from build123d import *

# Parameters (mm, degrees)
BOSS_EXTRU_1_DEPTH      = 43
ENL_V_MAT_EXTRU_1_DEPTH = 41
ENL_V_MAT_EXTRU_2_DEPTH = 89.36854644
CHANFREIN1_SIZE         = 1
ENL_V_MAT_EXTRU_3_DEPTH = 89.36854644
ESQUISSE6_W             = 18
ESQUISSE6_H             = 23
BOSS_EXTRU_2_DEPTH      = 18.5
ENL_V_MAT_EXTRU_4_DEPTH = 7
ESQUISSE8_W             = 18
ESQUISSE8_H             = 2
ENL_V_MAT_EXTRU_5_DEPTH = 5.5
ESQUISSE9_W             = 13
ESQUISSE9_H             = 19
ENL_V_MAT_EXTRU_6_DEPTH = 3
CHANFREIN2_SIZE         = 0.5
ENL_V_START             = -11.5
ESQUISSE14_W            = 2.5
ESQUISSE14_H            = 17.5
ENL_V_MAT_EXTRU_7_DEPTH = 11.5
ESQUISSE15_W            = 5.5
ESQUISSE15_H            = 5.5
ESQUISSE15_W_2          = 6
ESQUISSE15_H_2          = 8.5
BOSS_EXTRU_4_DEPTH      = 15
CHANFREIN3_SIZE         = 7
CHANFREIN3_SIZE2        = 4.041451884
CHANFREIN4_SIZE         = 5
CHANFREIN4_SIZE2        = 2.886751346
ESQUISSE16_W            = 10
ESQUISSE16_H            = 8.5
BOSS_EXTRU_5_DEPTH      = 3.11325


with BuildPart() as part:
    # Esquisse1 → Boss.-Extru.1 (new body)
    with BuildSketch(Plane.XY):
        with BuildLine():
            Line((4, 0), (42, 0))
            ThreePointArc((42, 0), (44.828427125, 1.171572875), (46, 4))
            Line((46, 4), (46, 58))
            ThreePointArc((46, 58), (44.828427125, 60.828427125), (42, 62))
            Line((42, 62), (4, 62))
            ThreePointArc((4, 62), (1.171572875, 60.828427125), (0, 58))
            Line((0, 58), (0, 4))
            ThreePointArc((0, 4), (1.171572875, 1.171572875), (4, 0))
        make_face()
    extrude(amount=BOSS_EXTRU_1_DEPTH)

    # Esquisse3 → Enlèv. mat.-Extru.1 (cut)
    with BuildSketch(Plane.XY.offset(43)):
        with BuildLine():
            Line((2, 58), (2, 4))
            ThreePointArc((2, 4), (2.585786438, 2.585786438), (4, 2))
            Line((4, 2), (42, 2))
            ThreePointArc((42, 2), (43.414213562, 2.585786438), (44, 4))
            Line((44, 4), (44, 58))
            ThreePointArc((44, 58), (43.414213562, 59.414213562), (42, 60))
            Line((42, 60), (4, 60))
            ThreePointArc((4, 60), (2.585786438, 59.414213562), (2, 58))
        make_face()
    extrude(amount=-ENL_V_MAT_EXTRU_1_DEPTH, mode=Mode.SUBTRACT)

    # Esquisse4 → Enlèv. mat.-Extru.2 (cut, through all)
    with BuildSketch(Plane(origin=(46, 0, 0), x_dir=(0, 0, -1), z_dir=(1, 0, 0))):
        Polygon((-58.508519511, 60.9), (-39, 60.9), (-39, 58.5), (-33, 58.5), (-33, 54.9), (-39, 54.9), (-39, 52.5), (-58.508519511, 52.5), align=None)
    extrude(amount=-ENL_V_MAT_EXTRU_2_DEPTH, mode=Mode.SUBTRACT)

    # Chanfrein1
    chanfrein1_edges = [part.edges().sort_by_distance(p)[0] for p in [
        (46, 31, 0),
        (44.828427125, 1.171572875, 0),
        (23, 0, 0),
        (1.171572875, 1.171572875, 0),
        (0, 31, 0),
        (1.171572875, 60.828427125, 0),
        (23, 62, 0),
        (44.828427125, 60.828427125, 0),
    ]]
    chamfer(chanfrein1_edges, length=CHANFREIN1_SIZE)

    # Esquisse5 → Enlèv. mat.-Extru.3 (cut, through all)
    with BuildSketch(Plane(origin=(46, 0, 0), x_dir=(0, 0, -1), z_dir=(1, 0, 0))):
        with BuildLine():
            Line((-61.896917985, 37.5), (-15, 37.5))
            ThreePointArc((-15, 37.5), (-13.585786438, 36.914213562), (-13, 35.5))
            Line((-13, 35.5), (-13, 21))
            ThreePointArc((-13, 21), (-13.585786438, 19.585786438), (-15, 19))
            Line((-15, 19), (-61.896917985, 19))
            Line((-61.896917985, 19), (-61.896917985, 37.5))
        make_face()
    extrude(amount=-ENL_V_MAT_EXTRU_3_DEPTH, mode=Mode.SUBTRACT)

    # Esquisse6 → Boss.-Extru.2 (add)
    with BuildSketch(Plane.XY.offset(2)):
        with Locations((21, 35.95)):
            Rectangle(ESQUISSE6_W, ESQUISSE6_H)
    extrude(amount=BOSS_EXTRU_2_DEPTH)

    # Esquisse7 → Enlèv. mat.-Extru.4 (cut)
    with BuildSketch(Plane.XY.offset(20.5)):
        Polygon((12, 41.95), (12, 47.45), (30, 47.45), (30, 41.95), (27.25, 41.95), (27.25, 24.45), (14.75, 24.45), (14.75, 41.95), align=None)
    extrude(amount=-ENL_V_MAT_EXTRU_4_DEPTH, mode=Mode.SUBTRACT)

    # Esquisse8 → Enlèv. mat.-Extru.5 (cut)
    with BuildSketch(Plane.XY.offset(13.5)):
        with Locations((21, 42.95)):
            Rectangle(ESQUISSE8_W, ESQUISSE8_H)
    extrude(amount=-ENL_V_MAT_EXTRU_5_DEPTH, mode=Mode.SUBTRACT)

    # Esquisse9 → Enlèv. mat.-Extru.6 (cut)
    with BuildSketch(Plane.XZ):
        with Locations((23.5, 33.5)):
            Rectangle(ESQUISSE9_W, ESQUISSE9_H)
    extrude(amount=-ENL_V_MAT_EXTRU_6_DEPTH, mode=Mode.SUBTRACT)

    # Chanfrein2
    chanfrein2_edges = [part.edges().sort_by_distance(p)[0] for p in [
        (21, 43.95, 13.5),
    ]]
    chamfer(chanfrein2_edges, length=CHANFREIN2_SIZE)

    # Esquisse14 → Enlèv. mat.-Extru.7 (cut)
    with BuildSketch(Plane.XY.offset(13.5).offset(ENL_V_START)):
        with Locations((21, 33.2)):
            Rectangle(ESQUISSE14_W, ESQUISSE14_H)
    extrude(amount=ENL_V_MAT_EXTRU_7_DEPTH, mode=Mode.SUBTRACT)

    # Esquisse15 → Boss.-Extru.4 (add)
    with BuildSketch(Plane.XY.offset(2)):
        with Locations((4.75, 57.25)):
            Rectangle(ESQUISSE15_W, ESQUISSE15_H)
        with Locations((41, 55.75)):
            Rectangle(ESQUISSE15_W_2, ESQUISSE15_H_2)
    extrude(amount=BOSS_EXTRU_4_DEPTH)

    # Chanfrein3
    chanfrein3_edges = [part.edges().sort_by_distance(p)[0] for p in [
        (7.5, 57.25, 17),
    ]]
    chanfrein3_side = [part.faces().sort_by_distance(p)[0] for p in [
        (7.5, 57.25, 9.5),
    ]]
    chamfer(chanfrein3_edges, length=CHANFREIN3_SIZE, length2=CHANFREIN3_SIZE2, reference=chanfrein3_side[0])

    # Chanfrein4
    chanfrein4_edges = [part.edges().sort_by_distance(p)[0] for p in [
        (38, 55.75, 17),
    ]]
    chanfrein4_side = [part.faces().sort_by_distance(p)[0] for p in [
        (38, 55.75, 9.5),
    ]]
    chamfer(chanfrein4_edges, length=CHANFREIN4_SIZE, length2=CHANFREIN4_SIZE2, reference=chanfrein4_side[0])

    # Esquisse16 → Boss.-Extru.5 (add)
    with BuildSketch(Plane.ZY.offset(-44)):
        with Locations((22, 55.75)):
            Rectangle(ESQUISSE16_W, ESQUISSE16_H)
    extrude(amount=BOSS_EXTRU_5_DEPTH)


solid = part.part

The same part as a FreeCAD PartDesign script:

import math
import FreeCAD as App
import Part
import Sketcher
Q = App.Units.Quantity


def edges_at(feature, points):
    """Names of the edges that pass closest to the given points."""
    edges = feature.Shape.Edges
    near = lambda p: min(range(len(edges)), key=lambda i: edges[i].distToShape(Part.Vertex(*p))[0])
    return sorted({f"Edge{near(p) + 1}" for p in points})

doc = App.newDocument("Part")
body = doc.addObject("PartDesign::Body", "Body")

sketch1 = body.newObject("Sketcher::SketchObject", "Sketch")
sketch1.AttachmentSupport = (doc.getObject("XY_Plane"), [""])
sketch1.MapMode = "FlatFace"
sketch1.addGeometry([
    Part.LineSegment(App.Vector(4, 0, 0), App.Vector(42, 0, 0)),
    Part.ArcOfCircle(Part.Circle(App.Vector(42, 4, 0), App.Vector(0, 0, 1), 4), math.radians(-90), math.radians(0)),
    Part.LineSegment(App.Vector(46, 4, 0), App.Vector(46, 58, 0)),
    Part.ArcOfCircle(Part.Circle(App.Vector(42, 58, 0), App.Vector(0, 0, 1), 4), math.radians(0), math.radians(90)),
    Part.LineSegment(App.Vector(42, 62, 0), App.Vector(4, 62, 0)),
    Part.ArcOfCircle(Part.Circle(App.Vector(4, 58, 0), App.Vector(0, 0, 1), 4), math.radians(90), math.radians(180)),
    Part.LineSegment(App.Vector(0, 58, 0), App.Vector(0, 4, 0)),
    Part.ArcOfCircle(Part.Circle(App.Vector(4, 4, 0), App.Vector(0, 0, 1), 4), math.radians(180), math.radians(270)),
], False)
sketch1.addConstraint([
    Sketcher.Constraint("Tangent", 0, 2, 1, 1),
    Sketcher.Constraint("Tangent", 1, 2, 2, 1),
    Sketcher.Constraint("Tangent", 2, 2, 3, 1),
    Sketcher.Constraint("Tangent", 3, 2, 4, 1),
    Sketcher.Constraint("Tangent", 4, 2, 5, 1),
    Sketcher.Constraint("Tangent", 5, 2, 6, 1),
    Sketcher.Constraint("Tangent", 6, 2, 7, 1),
    Sketcher.Constraint("Tangent", 7, 2, 0, 1),
    Sketcher.Constraint("Horizontal", 0),
    Sketcher.Constraint("Vertical", 2),
    Sketcher.Constraint("Horizontal", 4),
    Sketcher.Constraint("Vertical", 6),
    Sketcher.Constraint("Equal", 1, 3),
    Sketcher.Constraint("Equal", 3, 5),
    Sketcher.Constraint("Equal", 5, 7),
    Sketcher.Constraint("PointOnObject", 0, 2, -1),
    Sketcher.Constraint("PointOnObject", 5, 2, -2),
    Sketcher.Constraint("Radius", 1, Q("4 mm")),
    Sketcher.Constraint("DistanceX", 0, 1, 0, 2, Q("38 mm")),
    Sketcher.Constraint("DistanceY", 2, 1, 2, 2, Q("54 mm")),
])
pad1 = body.newObject("PartDesign::Pad", "Pad")
pad1.Profile = sketch1
pad1.Length = 43

sketch2 = body.newObject("Sketcher::SketchObject", "Sketch001")
sketch2.AttachmentSupport = (doc.getObject("XY_Plane"), [""])
sketch2.MapMode = "FlatFace"
sketch2.AttachmentOffset = App.Placement(App.Vector(0, 0, 43), App.Rotation())
sketch2.addGeometry([
    Part.LineSegment(App.Vector(2, 58, 0), App.Vector(2, 4, 0)),
    Part.ArcOfCircle(Part.Circle(App.Vector(4, 4, 0), App.Vector(0, 0, 1), 2), math.radians(-180), math.radians(-90)),
    Part.LineSegment(App.Vector(4, 2, 0), App.Vector(42, 2, 0)),
    Part.ArcOfCircle(Part.Circle(App.Vector(42, 4, 0), App.Vector(0, 0, 1), 2), math.radians(-90), math.radians(0)),
    Part.LineSegment(App.Vector(44, 4, 0), App.Vector(44, 58, 0)),
    Part.ArcOfCircle(Part.Circle(App.Vector(42, 58, 0), App.Vector(0, 0, 1), 2), math.radians(0), math.radians(90)),
    Part.LineSegment(App.Vector(42, 60, 0), App.Vector(4, 60, 0)),
    Part.ArcOfCircle(Part.Circle(App.Vector(4, 58, 0), App.Vector(0, 0, 1), 2), math.radians(90), math.radians(180)),
], False)
sketch2.addConstraint([
    Sketcher.Constraint("Tangent", 0, 2, 1, 1),
    Sketcher.Constraint("Tangent", 1, 2, 2, 1),
    Sketcher.Constraint("Tangent", 2, 2, 3, 1),
    Sketcher.Constraint("Tangent", 3, 2, 4, 1),
    Sketcher.Constraint("Tangent", 4, 2, 5, 1),
    Sketcher.Constraint("Tangent", 5, 2, 6, 1),
    Sketcher.Constraint("Tangent", 6, 2, 7, 1),
    Sketcher.Constraint("Tangent", 7, 2, 0, 1),
    Sketcher.Constraint("Vertical", 0),
    Sketcher.Constraint("Horizontal", 2),
    Sketcher.Constraint("Vertical", 4),
    Sketcher.Constraint("Horizontal", 6),
    Sketcher.Constraint("Equal", 1, 3),
    Sketcher.Constraint("Equal", 3, 5),
    Sketcher.Constraint("Equal", 5, 7),
    Sketcher.Constraint("Radius", 1, Q("2 mm")),
    Sketcher.Constraint("DistanceX", 2, 1, 2, 2, Q("38 mm")),
    Sketcher.Constraint("DistanceY", 0, 2, 0, 1, Q("54 mm")),
    Sketcher.Constraint("DistanceX", -1, 1, 1, 3, Q("4 mm")),
    Sketcher.Constraint("DistanceY", -1, 1, 1, 3, Q("4 mm")),
])
pocket1 = body.newObject("PartDesign::Pocket", "Pocket")
pocket1.Profile = sketch2
pocket1.Length = 41

sketch3 = body.newObject("Sketcher::SketchObject", "Sketch002")
sketch3.AttachmentSupport = (doc.getObject("YZ_Plane"), [""])
sketch3.MapMode = "FlatFace"
sketch3.AttachmentOffset = App.Placement(App.Vector(0, 0, 46), App.Rotation())
sketch3.addGeometry([
    Part.LineSegment(App.Vector(60.9, 39, 0), App.Vector(60.9, 58.5, 0)),
    Part.LineSegment(App.Vector(60.9, 58.5, 0), App.Vector(52.5, 58.5, 0)),
    Part.LineSegment(App.Vector(52.5, 58.5, 0), App.Vector(52.5, 39, 0)),
    Part.LineSegment(App.Vector(52.5, 39, 0), App.Vector(54.9, 39, 0)),
    Part.LineSegment(App.Vector(54.9, 39, 0), App.Vector(54.9, 33, 0)),
    Part.LineSegment(App.Vector(54.9, 33, 0), App.Vector(58.5, 33, 0)),
    Part.LineSegment(App.Vector(58.5, 33, 0), App.Vector(58.5, 39, 0)),
    Part.LineSegment(App.Vector(58.5, 39, 0), App.Vector(60.9, 39, 0)),
], False)
sketch3.addConstraint([
    Sketcher.Constraint("Coincident", 0, 2, 1, 1),
    Sketcher.Constraint("Coincident", 1, 2, 2, 1),
    Sketcher.Constraint("Coincident", 2, 2, 3, 1),
    Sketcher.Constraint("Coincident", 3, 2, 4, 1),
    Sketcher.Constraint("Coincident", 4, 2, 5, 1),
    Sketcher.Constraint("Coincident", 5, 2, 6, 1),
    Sketcher.Constraint("Coincident", 6, 2, 7, 1),
    Sketcher.Constraint("Coincident", 7, 2, 0, 1),
    Sketcher.Constraint("Vertical", 0),
    Sketcher.Constraint("Horizontal", 1),
    Sketcher.Constraint("Vertical", 2),
    Sketcher.Constraint("Horizontal", 3),
    Sketcher.Constraint("Vertical", 4),
    Sketcher.Constraint("Horizontal", 5),
    Sketcher.Constraint("Vertical", 6),
    Sketcher.Constraint("Horizontal", 7),
    Sketcher.Constraint("Horizontal", 3, 2, 6, 2),
    Sketcher.Constraint("Equal", 3, 7),
    Sketcher.Constraint("DistanceY", 4, 2, 4, 1, Q("6 mm")),
    Sketcher.Constraint("DistanceX", 1, 2, 1, 1, Q("8.4 mm")),
    Sketcher.Constraint("DistanceX", 3, 1, 3, 2, Q("2.4 mm")),
    Sketcher.Constraint("DistanceY", -1, 1, 2, 2, Q("39 mm")),
    Sketcher.Constraint("DistanceX", -1, 1, 0, 2, Q("60.9 mm")),
    Sketcher.Constraint("DistanceY", 0, 1, 0, 2, Q("19.50852 mm")),
])
pocket2 = body.newObject("PartDesign::Pocket", "Pocket001")
pocket2.Profile = sketch3
pocket2.Type = "ThroughAll"
doc.recompute()

chamfer = body.newObject("PartDesign::Chamfer", "Chamfer")
chamfer.Base = (pocket2, edges_at(pocket2, [
    (46, 31, 0),
    (44.828, 1.172, 0),
    (23, 0, 0),
    (1.172, 1.172, 0),
    (0, 31, 0),
    (1.172, 60.828, 0),
    (23, 62, 0),
    (44.828, 60.828, 0),
]))
chamfer.Size = 1

sketch4 = body.newObject("Sketcher::SketchObject", "Sketch003")
sketch4.AttachmentSupport = (doc.getObject("YZ_Plane"), [""])
sketch4.MapMode = "FlatFace"
sketch4.AttachmentOffset = App.Placement(App.Vector(0, 0, 46), App.Rotation())
sketch4.addGeometry([
    Part.LineSegment(App.Vector(37.5, 15, 0), App.Vector(37.5, 61.9, 0)),
    Part.LineSegment(App.Vector(37.5, 61.9, 0), App.Vector(19, 61.9, 0)),
    Part.LineSegment(App.Vector(19, 61.9, 0), App.Vector(19, 15, 0)),
    Part.ArcOfCircle(Part.Circle(App.Vector(21, 15, 0), App.Vector(0, 0, 1), 2), math.radians(-180), math.radians(-90)),
    Part.LineSegment(App.Vector(21, 13, 0), App.Vector(35.5, 13, 0)),
    Part.ArcOfCircle(Part.Circle(App.Vector(35.5, 15, 0), App.Vector(0, 0, 1), 2), math.radians(-90), math.radians(0)),
], False)
sketch4.addConstraint([
    Sketcher.Constraint("Coincident", 0, 2, 1, 1),
    Sketcher.Constraint("Coincident", 1, 2, 2, 1),
    Sketcher.Constraint("Tangent", 2, 2, 3, 1),
    Sketcher.Constraint("Tangent", 3, 2, 4, 1),
    Sketcher.Constraint("Tangent", 4, 2, 5, 1),
    Sketcher.Constraint("Tangent", 5, 2, 0, 1),
    Sketcher.Constraint("Vertical", 0),
    Sketcher.Constraint("Horizontal", 1),
    Sketcher.Constraint("Vertical", 2),
    Sketcher.Constraint("Horizontal", 4),
    Sketcher.Constraint("Equal", 3, 5),
    Sketcher.Constraint("Radius", 3, Q("2 mm")),
    Sketcher.Constraint("DistanceX", 1, 2, 1, 1, Q("18.5 mm")),
    Sketcher.Constraint("DistanceX", -1, 1, 3, 3, Q("21 mm")),
    Sketcher.Constraint("DistanceY", -1, 1, 3, 3, Q("15 mm")),
    Sketcher.Constraint("DistanceY", 0, 1, 0, 2, Q("46.896918 mm")),
])
pocket3 = body.newObject("PartDesign::Pocket", "Pocket002")
pocket3.Profile = sketch4
pocket3.Type = "ThroughAll"

sketch5 = body.newObject("Sketcher::SketchObject", "Sketch004")
sketch5.AttachmentSupport = (doc.getObject("XY_Plane"), [""])
sketch5.MapMode = "FlatFace"
sketch5.AttachmentOffset = App.Placement(App.Vector(0, 0, 2), App.Rotation())
sketch5.addGeometry([
    Part.LineSegment(App.Vector(12, 47, 0), App.Vector(12, 24, 0)),
    Part.LineSegment(App.Vector(12, 24, 0), App.Vector(30, 24, 0)),
    Part.LineSegment(App.Vector(30, 24, 0), App.Vector(30, 47, 0)),
    Part.LineSegment(App.Vector(30, 47, 0), App.Vector(12, 47, 0)),
], False)
sketch5.addConstraint([
    Sketcher.Constraint("Coincident", 0, 2, 1, 1),
    Sketcher.Constraint("Coincident", 1, 2, 2, 1),
    Sketcher.Constraint("Coincident", 2, 2, 3, 1),
    Sketcher.Constraint("Coincident", 3, 2, 0, 1),
    Sketcher.Constraint("Vertical", 0),
    Sketcher.Constraint("Horizontal", 1),
    Sketcher.Constraint("Vertical", 2),
    Sketcher.Constraint("Horizontal", 3),
    Sketcher.Constraint("DistanceX", 1, 1, 1, 2, Q("18 mm")),
    Sketcher.Constraint("DistanceY", 0, 2, 0, 1, Q("23 mm")),
    Sketcher.Constraint("DistanceX", -1, 1, 0, 2, Q("12 mm")),
    Sketcher.Constraint("DistanceY", -1, 1, 0, 2, Q("24.45 mm")),
])
pad2 = body.newObject("PartDesign::Pad", "Pad001")
pad2.Profile = sketch5
pad2.Length = 18.5

sketch6 = body.newObject("Sketcher::SketchObject", "Sketch005")
sketch6.AttachmentSupport = (doc.getObject("XY_Plane"), [""])
sketch6.MapMode = "FlatFace"
sketch6.AttachmentOffset = App.Placement(App.Vector(0, 0, 20.5), App.Rotation())
sketch6.addGeometry([
    Part.LineSegment(App.Vector(12, 47.5, 0), App.Vector(12, 42, 0)),
    Part.LineSegment(App.Vector(12, 42, 0), App.Vector(14.8, 42, 0)),
    Part.LineSegment(App.Vector(14.8, 42, 0), App.Vector(14.8, 24.4, 0)),
    Part.LineSegment(App.Vector(14.8, 24.4, 0), App.Vector(27.2, 24.4, 0)),
    Part.LineSegment(App.Vector(27.2, 24.4, 0), App.Vector(27.2, 42, 0)),
    Part.LineSegment(App.Vector(27.2, 42, 0), App.Vector(30, 42, 0)),
    Part.LineSegment(App.Vector(30, 42, 0), App.Vector(30, 47.5, 0)),
    Part.LineSegment(App.Vector(30, 47.5, 0), App.Vector(12, 47.5, 0)),
], False)
sketch6.addConstraint([
    Sketcher.Constraint("Coincident", 0, 2, 1, 1),
    Sketcher.Constraint("Coincident", 1, 2, 2, 1),
    Sketcher.Constraint("Coincident", 2, 2, 3, 1),
    Sketcher.Constraint("Coincident", 3, 2, 4, 1),
    Sketcher.Constraint("Coincident", 4, 2, 5, 1),
    Sketcher.Constraint("Coincident", 5, 2, 6, 1),
    Sketcher.Constraint("Coincident", 6, 2, 7, 1),
    Sketcher.Constraint("Coincident", 7, 2, 0, 1),
    Sketcher.Constraint("Vertical", 0),
    Sketcher.Constraint("Horizontal", 1),
    Sketcher.Constraint("Vertical", 2),
    Sketcher.Constraint("Horizontal", 3),
    Sketcher.Constraint("Vertical", 4),
    Sketcher.Constraint("Horizontal", 5),
    Sketcher.Constraint("Vertical", 6),
    Sketcher.Constraint("Horizontal", 7),
    Sketcher.Constraint("Horizontal", 1, 2, 4, 2),
    Sketcher.Constraint("Equal", 1, 5),
    Sketcher.Constraint("DistanceX", 7, 2, 7, 1, Q("18 mm")),
    Sketcher.Constraint("DistanceX", 3, 1, 3, 2, Q("12.5 mm")),
    Sketcher.Constraint("DistanceY", 0, 2, 0, 1, Q("5.5 mm")),
    Sketcher.Constraint("DistanceY", 2, 2, 2, 1, Q("17.5 mm")),
    Sketcher.Constraint("DistanceX", -1, 1, 0, 2, Q("12 mm")),
    Sketcher.Constraint("DistanceY", -1, 1, 0, 2, Q("41.95 mm")),
])
pocket4 = body.newObject("PartDesign::Pocket", "Pocket003")
pocket4.Profile = sketch6
pocket4.Length = 7

sketch7 = body.newObject("Sketcher::SketchObject", "Sketch006")
sketch7.AttachmentSupport = (doc.getObject("XY_Plane"), [""])
sketch7.MapMode = "FlatFace"
sketch7.AttachmentOffset = App.Placement(App.Vector(0, 0, 13.5), App.Rotation())
sketch7.addGeometry([
    Part.LineSegment(App.Vector(12, 44, 0), App.Vector(12, 42, 0)),
    Part.LineSegment(App.Vector(12, 42, 0), App.Vector(30, 42, 0)),
    Part.LineSegment(App.Vector(30, 42, 0), App.Vector(30, 44, 0)),
    Part.LineSegment(App.Vector(30, 44, 0), App.Vector(12, 44, 0)),
], False)
sketch7.addConstraint([
    Sketcher.Constraint("Coincident", 0, 2, 1, 1),
    Sketcher.Constraint("Coincident", 1, 2, 2, 1),
    Sketcher.Constraint("Coincident", 2, 2, 3, 1),
    Sketcher.Constraint("Coincident", 3, 2, 0, 1),
    Sketcher.Constraint("Vertical", 0),
    Sketcher.Constraint("Horizontal", 1),
    Sketcher.Constraint("Vertical", 2),
    Sketcher.Constraint("Horizontal", 3),
    Sketcher.Constraint("DistanceX", 1, 1, 1, 2, Q("18 mm")),
    Sketcher.Constraint("DistanceY", 0, 2, 0, 1, Q("2 mm")),
    Sketcher.Constraint("DistanceX", -1, 1, 0, 2, Q("12 mm")),
    Sketcher.Constraint("DistanceY", -1, 1, 0, 2, Q("41.95 mm")),
])
pocket5 = body.newObject("PartDesign::Pocket", "Pocket004")
pocket5.Profile = sketch7
pocket5.Length = 5.5

sketch8 = body.newObject("Sketcher::SketchObject", "Sketch007")
sketch8.AttachmentSupport = (doc.getObject("XZ_Plane"), [""])
sketch8.MapMode = "FlatFace"
sketch8.addGeometry([
    Part.LineSegment(App.Vector(17, 43, 0), App.Vector(17, 24, 0)),
    Part.LineSegment(App.Vector(17, 24, 0), App.Vector(30, 24, 0)),
    Part.LineSegment(App.Vector(30, 24, 0), App.Vector(30, 43, 0)),
    Part.LineSegment(App.Vector(30, 43, 0), App.Vector(17, 43, 0)),
], False)
sketch8.addConstraint([
    Sketcher.Constraint("Coincident", 0, 2, 1, 1),
    Sketcher.Constraint("Coincident", 1, 2, 2, 1),
    Sketcher.Constraint("Coincident", 2, 2, 3, 1),
    Sketcher.Constraint("Coincident", 3, 2, 0, 1),
    Sketcher.Constraint("Vertical", 0),
    Sketcher.Constraint("Horizontal", 1),
    Sketcher.Constraint("Vertical", 2),
    Sketcher.Constraint("Horizontal", 3),
    Sketcher.Constraint("DistanceX", 1, 1, 1, 2, Q("13 mm")),
    Sketcher.Constraint("DistanceY", 0, 2, 0, 1, Q("19 mm")),
    Sketcher.Constraint("DistanceX", -1, 1, 0, 2, Q("17 mm")),
    Sketcher.Constraint("DistanceY", -1, 1, 0, 2, Q("24 mm")),
])
pocket6 = body.newObject("PartDesign::Pocket", "Pocket005")
pocket6.Profile = sketch8
pocket6.Length = 3
doc.recompute()

chamfer2 = body.newObject("PartDesign::Chamfer", "Chamfer001")
chamfer2.Base = (pocket6, edges_at(pocket6, [(21, 43.95, 13.5)]))
chamfer2.Size = 0.5

sketch9 = body.newObject("Sketcher::SketchObject", "Sketch008")
sketch9.AttachmentSupport = (doc.getObject("XY_Plane"), [""])
sketch9.MapMode = "FlatFace"
sketch9.AttachmentOffset = App.Placement(App.Vector(0, 0, 2), App.Rotation())
sketch9.addGeometry([
    Part.LineSegment(App.Vector(19.8, 42, 0), App.Vector(19.8, 24.4, 0)),
    Part.LineSegment(App.Vector(19.8, 24.4, 0), App.Vector(22.2, 24.4, 0)),
    Part.LineSegment(App.Vector(22.2, 24.4, 0), App.Vector(22.2, 42, 0)),
    Part.LineSegment(App.Vector(22.2, 42, 0), App.Vector(19.8, 42, 0)),
], False)
sketch9.addConstraint([
    Sketcher.Constraint("Coincident", 0, 2, 1, 1),
    Sketcher.Constraint("Coincident", 1, 2, 2, 1),
    Sketcher.Constraint("Coincident", 2, 2, 3, 1),
    Sketcher.Constraint("Coincident", 3, 2, 0, 1),
    Sketcher.Constraint("Vertical", 0),
    Sketcher.Constraint("Horizontal", 1),
    Sketcher.Constraint("Vertical", 2),
    Sketcher.Constraint("Horizontal", 3),
    Sketcher.Constraint("DistanceX", 1, 1, 1, 2, Q("2.5 mm")),
    Sketcher.Constraint("DistanceY", 0, 2, 0, 1, Q("17.5 mm")),
    Sketcher.Constraint("DistanceX", -1, 1, 0, 2, Q("19.75 mm")),
    Sketcher.Constraint("DistanceY", -1, 1, 0, 2, Q("24.45 mm")),
])
pocket7 = body.newObject("PartDesign::Pocket", "Pocket006")
pocket7.Profile = sketch9
pocket7.Length = 11.5
pocket7.Reversed = True

sketch10 = body.newObject("Sketcher::SketchObject", "Sketch009")
sketch10.AttachmentSupport = (doc.getObject("XY_Plane"), [""])
sketch10.MapMode = "FlatFace"
sketch10.AttachmentOffset = App.Placement(App.Vector(0, 0, 2), App.Rotation())
sketch10.addGeometry([
    Part.LineSegment(App.Vector(2, 60, 0), App.Vector(2, 54, 0)),
    Part.LineSegment(App.Vector(2, 54, 0), App.Vector(8, 54, 0)),
    Part.LineSegment(App.Vector(8, 54, 0), App.Vector(8, 60, 0)),
    Part.LineSegment(App.Vector(8, 60, 0), App.Vector(2, 60, 0)),
    Part.LineSegment(App.Vector(38, 60, 0), App.Vector(38, 52, 0)),
    Part.LineSegment(App.Vector(38, 52, 0), App.Vector(44, 52, 0)),
    Part.LineSegment(App.Vector(44, 52, 0), App.Vector(44, 60, 0)),
    Part.LineSegment(App.Vector(44, 60, 0), App.Vector(38, 60, 0)),
], False)
sketch10.addConstraint([
    Sketcher.Constraint("Coincident", 0, 2, 1, 1),
    Sketcher.Constraint("Coincident", 1, 2, 2, 1),
    Sketcher.Constraint("Coincident", 2, 2, 3, 1),
    Sketcher.Constraint("Coincident", 3, 2, 0, 1),
    Sketcher.Constraint("Coincident", 4, 2, 5, 1),
    Sketcher.Constraint("Coincident", 5, 2, 6, 1),
    Sketcher.Constraint("Coincident", 6, 2, 7, 1),
    Sketcher.Constraint("Coincident", 7, 2, 4, 1),
    Sketcher.Constraint("Vertical", 0),
    Sketcher.Constraint("Horizontal", 1),
    Sketcher.Constraint("Vertical", 2),
    Sketcher.Constraint("Horizontal", 3),
    Sketcher.Constraint("Vertical", 4),
    Sketcher.Constraint("Horizontal", 5),
    Sketcher.Constraint("Vertical", 6),
    Sketcher.Constraint("Horizontal", 7),
    Sketcher.Constraint("Horizontal", 3, 2, 6, 2),
    Sketcher.Constraint("Equal", 3, 0),
    Sketcher.Constraint("DistanceX", 5, 1, 5, 2, Q("6 mm")),
    Sketcher.Constraint("DistanceX", 1, 1, 1, 2, Q("5.5 mm")),
    Sketcher.Constraint("DistanceY", 4, 2, 4, 1, Q("8.5 mm")),
    Sketcher.Constraint("DistanceX", -1, 1, 0, 2, Q("2 mm")),
    Sketcher.Constraint("DistanceY", -1, 1, 2, 2, Q("60 mm")),
    Sketcher.Constraint("DistanceX", -1, 1, 4, 2, Q("38 mm")),
])
pad3 = body.newObject("PartDesign::Pad", "Pad002")
pad3.Profile = sketch10
pad3.Length = 15
doc.recompute()

chamfer3 = body.newObject("PartDesign::Chamfer", "Chamfer002")
chamfer3.Base = (pad3, edges_at(pad3, [(7.5, 57.25, 17)]))
chamfer3.ChamferType = "Two distances"
chamfer3.Size = 7
chamfer3.Size2 = 4.041452
chamfer3.FlipDirection = True
doc.recompute()

chamfer4 = body.newObject("PartDesign::Chamfer", "Chamfer003")
chamfer4.Base = (chamfer3, edges_at(chamfer3, [(38, 55.75, 17)]))
chamfer4.ChamferType = "Two distances"
chamfer4.Size = 5
chamfer4.Size2 = 2.886751

sketch11 = body.newObject("Sketcher::SketchObject", "Sketch010")
sketch11.AttachmentSupport = (doc.getObject("YZ_Plane"), [""])
sketch11.MapMode = "FlatFace"
sketch11.AttachmentOffset = App.Placement(App.Vector(0, 0, 44), App.Rotation())
sketch11.addGeometry([
    Part.LineSegment(App.Vector(60, 17, 0), App.Vector(52, 17, 0)),
    Part.LineSegment(App.Vector(52, 17, 0), App.Vector(52, 27, 0)),
    Part.LineSegment(App.Vector(52, 27, 0), App.Vector(60, 27, 0)),
    Part.LineSegment(App.Vector(60, 27, 0), App.Vector(60, 17, 0)),
], False)
sketch11.addConstraint([
    Sketcher.Constraint("Coincident", 0, 2, 1, 1),
    Sketcher.Constraint("Coincident", 1, 2, 2, 1),
    Sketcher.Constraint("Coincident", 2, 2, 3, 1),
    Sketcher.Constraint("Coincident", 3, 2, 0, 1),
    Sketcher.Constraint("Horizontal", 0),
    Sketcher.Constraint("Vertical", 1),
    Sketcher.Constraint("Horizontal", 2),
    Sketcher.Constraint("Vertical", 3),
    Sketcher.Constraint("DistanceY", 1, 1, 1, 2, Q("10 mm")),
    Sketcher.Constraint("DistanceX", 0, 2, 0, 1, Q("8.5 mm")),
    Sketcher.Constraint("DistanceY", -1, 1, 0, 2, Q("17 mm")),
    Sketcher.Constraint("DistanceX", -1, 1, 2, 2, Q("60 mm")),
])
pad4 = body.newObject("PartDesign::Pad", "Pad003")
pad4.Profile = sketch11
pad4.Length = 3.11325
pad4.Reversed = True

doc.recompute()
